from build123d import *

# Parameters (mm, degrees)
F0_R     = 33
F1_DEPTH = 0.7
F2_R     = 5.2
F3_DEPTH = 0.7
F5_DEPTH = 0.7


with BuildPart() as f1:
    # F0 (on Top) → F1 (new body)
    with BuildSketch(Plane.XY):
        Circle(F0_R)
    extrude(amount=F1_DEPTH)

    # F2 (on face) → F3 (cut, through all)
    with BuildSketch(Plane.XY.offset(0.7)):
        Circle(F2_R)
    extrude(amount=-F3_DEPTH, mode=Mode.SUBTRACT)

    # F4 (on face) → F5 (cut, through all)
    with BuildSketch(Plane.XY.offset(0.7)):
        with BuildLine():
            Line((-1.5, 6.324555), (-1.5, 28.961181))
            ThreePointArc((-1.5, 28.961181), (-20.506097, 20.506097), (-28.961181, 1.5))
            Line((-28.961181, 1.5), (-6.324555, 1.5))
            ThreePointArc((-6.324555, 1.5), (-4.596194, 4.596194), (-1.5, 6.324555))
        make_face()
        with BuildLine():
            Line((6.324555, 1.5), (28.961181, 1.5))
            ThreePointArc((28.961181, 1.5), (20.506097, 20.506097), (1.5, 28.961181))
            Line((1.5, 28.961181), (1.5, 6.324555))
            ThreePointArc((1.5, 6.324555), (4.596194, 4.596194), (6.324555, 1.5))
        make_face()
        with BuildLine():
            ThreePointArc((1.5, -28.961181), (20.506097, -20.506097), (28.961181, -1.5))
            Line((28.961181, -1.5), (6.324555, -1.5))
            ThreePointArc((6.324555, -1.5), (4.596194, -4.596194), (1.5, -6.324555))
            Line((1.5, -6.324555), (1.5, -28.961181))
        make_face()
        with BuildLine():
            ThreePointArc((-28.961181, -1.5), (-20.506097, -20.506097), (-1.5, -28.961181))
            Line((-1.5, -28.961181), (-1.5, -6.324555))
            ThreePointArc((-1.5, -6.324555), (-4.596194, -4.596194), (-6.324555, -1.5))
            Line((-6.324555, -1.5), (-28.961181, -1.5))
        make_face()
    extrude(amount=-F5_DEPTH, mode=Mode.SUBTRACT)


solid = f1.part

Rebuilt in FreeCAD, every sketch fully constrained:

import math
import FreeCAD as App
import Part
import Sketcher

doc = App.newDocument("Part")
body = doc.addObject("PartDesign::Body", "Body")

# Sketch on XY plane
sketch1 = body.newObject("Sketcher::SketchObject", "Sketch")
sketch1.AttachmentSupport = (doc.getObject("XY_Plane"), [""])
sketch1.MapMode = "FlatFace"
sketch1.addGeometry(Part.Circle(App.Vector(0, 0, 0), App.Vector(0, 0, 1), 33), False)
sketch1.addConstraint(Sketcher.Constraint("Coincident", 0, 3, -1, 1))
sketch1.addConstraint(Sketcher.Constraint("Diameter", 0, 66.0))
pad1 = body.newObject("PartDesign::Pad", "Pad")
pad1.Profile = sketch1
pad1.Length = 0.7

# Sketch on XY plane
sketch2 = body.newObject("Sketcher::SketchObject", "Sketch001")
sketch2.AttachmentSupport = (doc.getObject("XY_Plane"), [""])
sketch2.MapMode = "FlatFace"
sketch2.AttachmentOffset = App.Placement(App.Vector(0, 0, 0.7), App.Rotation())
sketch2.addGeometry(Part.Circle(App.Vector(0, 0, 0), App.Vector(0, 0, 1), 5), False)
sketch2.addConstraint(Sketcher.Constraint("Coincident", 0, 3, -1, 1))
sketch2.addConstraint(Sketcher.Constraint("Diameter", 0, 10.4))
pocket1 = body.newObject("PartDesign::Pocket", "Pocket")
pocket1.Profile = sketch2
pocket1.Type = "ThroughAll"

# Sketch on XY plane
sketch3 = body.newObject("Sketcher::SketchObject", "Sketch002")
sketch3.AttachmentSupport = (doc.getObject("XY_Plane"), [""])
sketch3.MapMode = "FlatFace"
sketch3.AttachmentOffset = App.Placement(App.Vector(0, 0, 0.7), App.Rotation())
sketch3.addGeometry(Part.LineSegment(App.Vector(-2, 6, 0), App.Vector(-2, 29, 0)), False)
sketch3.addGeometry(Part.ArcOfCircle(Part.Circle(App.Vector(0, 0, 0), App.Vector(0, 0, 1), 29), math.radians(93), math.radians(177)), False)
sketch3.addGeometry(Part.LineSegment(App.Vector(-29, 2, 0), App.Vector(-6, 2, 0)), False)
sketch3.addGeometry(Part.ArcOfCircle(Part.Circle(App.Vector(0, 0, 0), App.Vector(0, 0, 1), 6), math.radians(103), math.radians(167)), False)
sketch3.addGeometry(Part.LineSegment(App.Vector(6, 2, 0), App.Vector(29, 2, 0)), False)
sketch3.addGeometry(Part.ArcOfCircle(Part.Circle(App.Vector(0, 0, 0), App.Vector(0, 0, 1), 29), math.radians(3), math.radians(87)), False)
sketch3.addGeometry(Part.LineSegment(App.Vector(2, 29, 0), App.Vector(2, 6, 0)), False)
sketch3.addGeometry(Part.ArcOfCircle(Part.Circle(App.Vector(0, 0, 0), App.Vector(0, 0, 1), 6), math.radians(13), math.radians(77)), False)
sketch3.addGeometry(Part.ArcOfCircle(Part.Circle(App.Vector(0, 0, 0), App.Vector(0, 0, 1), 29), math.radians(-87), math.radians(-3)), False)
sketch3.addGeometry(Part.LineSegment(App.Vector(29, -2, 0), App.Vector(6, -2, 0)), False)
sketch3.addGeometry(Part.ArcOfCircle(Part.Circle(App.Vector(0, 0, 0), App.Vector(0, 0, 1), 6), math.radians(-77), math.radians(-13)), False)
sketch3.addGeometry(Part.LineSegment(App.Vector(2, -6, 0), App.Vector(2, -29, 0)), False)
sketch3.addGeometry(Part.ArcOfCircle(Part.Circle(App.Vector(0, 0, 0), App.Vector(0, 0, 1), 29), math.radians(-177), math.radians(-93)), False)
sketch3.addGeometry(Part.LineSegment(App.Vector(-2, -29, 0), App.Vector(-2, -6, 0)), False)
sketch3.addGeometry(Part.ArcOfCircle(Part.Circle(App.Vector(0, 0, 0), App.Vector(0, 0, 1), 6), math.radians(-167), math.radians(-103)), False)
sketch3.addGeometry(Part.LineSegment(App.Vector(-6, -2, 0), App.Vector(-29, -2, 0)), False)
sketch3.addConstraint(Sketcher.Constraint("Coincident", 0, 2, 1, 1))
sketch3.addConstraint(Sketcher.Constraint("Coincident", 1, 2, 2, 1))
sketch3.addConstraint(Sketcher.Constraint("Coincident", 2, 2, 3, 2))
sketch3.addConstraint(Sketcher.Constraint("Coincident", 3, 1, 0, 1))
sketch3.addConstraint(Sketcher.Constraint("Coincident", 4, 2, 5, 1))
sketch3.addConstraint(Sketcher.Constraint("Coincident", 5, 2, 6, 1))
sketch3.addConstraint(Sketcher.Constraint("Coincident", 6, 2, 7, 2))
sketch3.addConstraint(Sketcher.Constraint("Coincident", 7, 1, 4, 1))
sketch3.addConstraint(Sketcher.Constraint("Coincident", 8, 2, 9, 1))
sketch3.addConstraint(Sketcher.Constraint("Coincident", 9, 2, 10, 2))
sketch3.addConstraint(Sketcher.Constraint("Coincident", 10, 1, 11, 1))
sketch3.addConstraint(Sketcher.Constraint("Coincident", 11, 2, 8, 1))
sketch3.addConstraint(Sketcher.Constraint("Coincident", 12, 2, 13, 1))
sketch3.addConstraint(Sketcher.Constraint("Coincident", 13, 2, 14, 2))
sketch3.addConstraint(Sketcher.Constraint("Coincident", 14, 1, 15, 1))
sketch3.addConstraint(Sketcher.Constraint("Coincident", 15, 2, 12, 1))
sketch3.addConstraint(Sketcher.Constraint("Vertical", 0))
sketch3.addConstraint(Sketcher.Constraint("Horizontal", 2))
sketch3.addConstraint(Sketcher.Constraint("Horizontal", 4))
sketch3.addConstraint(Sketcher.Constraint("Vertical", 6))
sketch3.addConstraint(Sketcher.Constraint("Horizontal", 9))
sketch3.addConstraint(Sketcher.Constraint("Vertical", 11))
sketch3.addConstraint(Sketcher.Constraint("Vertical", 13))
sketch3.addConstraint(Sketcher.Constraint("Horizontal", 15))
sketch3.addConstraint(Sketcher.Constraint("Coincident", 1, 3, -1, 1))
sketch3.addConstraint(Sketcher.Constraint("Coincident", 3, 3, -1, 1))
sketch3.addConstraint(Sketcher.Constraint("Coincident", 5, 3, -1, 1))
sketch3.addConstraint(Sketcher.Constraint("Coincident", 7, 3, -1, 1))
sketch3.addConstraint(Sketcher.Constraint("Coincident", 8, 3, -1, 1))
sketch3.addConstraint(Sketcher.Constraint("Coincident", 10, 3, -1, 1))
sketch3.addConstraint(Sketcher.Constraint("Coincident", 12, 3, -1, 1))
sketch3.addConstraint(Sketcher.Constraint("Coincident", 14, 3, -1, 1))
sketch3.addConstraint(Sketcher.Constraint("Equal", 1, 5))
sketch3.addConstraint(Sketcher.Constraint("Equal", 3, 7))
sketch3.addConstraint(Sketcher.Constraint("Equal", 5, 8))
sketch3.addConstraint(Sketcher.Constraint("Equal", 7, 10))
sketch3.addConstraint(Sketcher.Constraint("Equal", 8, 12))
sketch3.addConstraint(Sketcher.Constraint("Equal", 10, 14))
sketch3.addConstraint(Sketcher.Constraint("Horizontal", 2, 2, 4, 2))
sketch3.addConstraint(Sketcher.Constraint("Horizontal", 0, 2, 5, 2))
sketch3.addConstraint(Sketcher.Constraint("Horizontal", 11, 2, 12, 2))
sketch3.addConstraint(Sketcher.Constraint("Horizontal", 9, 2, 14, 1))
sketch3.addConstraint(Sketcher.Constraint("Vertical", 4, 2, 8, 2))
sketch3.addConstraint(Sketcher.Constraint("Vertical", 6, 2, 10, 1))
sketch3.addConstraint(Sketcher.Constraint("Equal", 15, 0))
sketch3.addConstraint(Sketcher.Constraint("Radius", 1, 28.999999))
sketch3.addConstraint(Sketcher.Constraint("Radius", 3, 6.499999))
sketch3.addConstraint(Sketcher.Constraint("DistanceX", 0, 2, 5, 2, 3.0))
pocket2 = body.newObject("PartDesign::Pocket", "Pocket001")
pocket2.Profile = sketch3
pocket2.Type = "ThroughAll"

doc.recompute()
